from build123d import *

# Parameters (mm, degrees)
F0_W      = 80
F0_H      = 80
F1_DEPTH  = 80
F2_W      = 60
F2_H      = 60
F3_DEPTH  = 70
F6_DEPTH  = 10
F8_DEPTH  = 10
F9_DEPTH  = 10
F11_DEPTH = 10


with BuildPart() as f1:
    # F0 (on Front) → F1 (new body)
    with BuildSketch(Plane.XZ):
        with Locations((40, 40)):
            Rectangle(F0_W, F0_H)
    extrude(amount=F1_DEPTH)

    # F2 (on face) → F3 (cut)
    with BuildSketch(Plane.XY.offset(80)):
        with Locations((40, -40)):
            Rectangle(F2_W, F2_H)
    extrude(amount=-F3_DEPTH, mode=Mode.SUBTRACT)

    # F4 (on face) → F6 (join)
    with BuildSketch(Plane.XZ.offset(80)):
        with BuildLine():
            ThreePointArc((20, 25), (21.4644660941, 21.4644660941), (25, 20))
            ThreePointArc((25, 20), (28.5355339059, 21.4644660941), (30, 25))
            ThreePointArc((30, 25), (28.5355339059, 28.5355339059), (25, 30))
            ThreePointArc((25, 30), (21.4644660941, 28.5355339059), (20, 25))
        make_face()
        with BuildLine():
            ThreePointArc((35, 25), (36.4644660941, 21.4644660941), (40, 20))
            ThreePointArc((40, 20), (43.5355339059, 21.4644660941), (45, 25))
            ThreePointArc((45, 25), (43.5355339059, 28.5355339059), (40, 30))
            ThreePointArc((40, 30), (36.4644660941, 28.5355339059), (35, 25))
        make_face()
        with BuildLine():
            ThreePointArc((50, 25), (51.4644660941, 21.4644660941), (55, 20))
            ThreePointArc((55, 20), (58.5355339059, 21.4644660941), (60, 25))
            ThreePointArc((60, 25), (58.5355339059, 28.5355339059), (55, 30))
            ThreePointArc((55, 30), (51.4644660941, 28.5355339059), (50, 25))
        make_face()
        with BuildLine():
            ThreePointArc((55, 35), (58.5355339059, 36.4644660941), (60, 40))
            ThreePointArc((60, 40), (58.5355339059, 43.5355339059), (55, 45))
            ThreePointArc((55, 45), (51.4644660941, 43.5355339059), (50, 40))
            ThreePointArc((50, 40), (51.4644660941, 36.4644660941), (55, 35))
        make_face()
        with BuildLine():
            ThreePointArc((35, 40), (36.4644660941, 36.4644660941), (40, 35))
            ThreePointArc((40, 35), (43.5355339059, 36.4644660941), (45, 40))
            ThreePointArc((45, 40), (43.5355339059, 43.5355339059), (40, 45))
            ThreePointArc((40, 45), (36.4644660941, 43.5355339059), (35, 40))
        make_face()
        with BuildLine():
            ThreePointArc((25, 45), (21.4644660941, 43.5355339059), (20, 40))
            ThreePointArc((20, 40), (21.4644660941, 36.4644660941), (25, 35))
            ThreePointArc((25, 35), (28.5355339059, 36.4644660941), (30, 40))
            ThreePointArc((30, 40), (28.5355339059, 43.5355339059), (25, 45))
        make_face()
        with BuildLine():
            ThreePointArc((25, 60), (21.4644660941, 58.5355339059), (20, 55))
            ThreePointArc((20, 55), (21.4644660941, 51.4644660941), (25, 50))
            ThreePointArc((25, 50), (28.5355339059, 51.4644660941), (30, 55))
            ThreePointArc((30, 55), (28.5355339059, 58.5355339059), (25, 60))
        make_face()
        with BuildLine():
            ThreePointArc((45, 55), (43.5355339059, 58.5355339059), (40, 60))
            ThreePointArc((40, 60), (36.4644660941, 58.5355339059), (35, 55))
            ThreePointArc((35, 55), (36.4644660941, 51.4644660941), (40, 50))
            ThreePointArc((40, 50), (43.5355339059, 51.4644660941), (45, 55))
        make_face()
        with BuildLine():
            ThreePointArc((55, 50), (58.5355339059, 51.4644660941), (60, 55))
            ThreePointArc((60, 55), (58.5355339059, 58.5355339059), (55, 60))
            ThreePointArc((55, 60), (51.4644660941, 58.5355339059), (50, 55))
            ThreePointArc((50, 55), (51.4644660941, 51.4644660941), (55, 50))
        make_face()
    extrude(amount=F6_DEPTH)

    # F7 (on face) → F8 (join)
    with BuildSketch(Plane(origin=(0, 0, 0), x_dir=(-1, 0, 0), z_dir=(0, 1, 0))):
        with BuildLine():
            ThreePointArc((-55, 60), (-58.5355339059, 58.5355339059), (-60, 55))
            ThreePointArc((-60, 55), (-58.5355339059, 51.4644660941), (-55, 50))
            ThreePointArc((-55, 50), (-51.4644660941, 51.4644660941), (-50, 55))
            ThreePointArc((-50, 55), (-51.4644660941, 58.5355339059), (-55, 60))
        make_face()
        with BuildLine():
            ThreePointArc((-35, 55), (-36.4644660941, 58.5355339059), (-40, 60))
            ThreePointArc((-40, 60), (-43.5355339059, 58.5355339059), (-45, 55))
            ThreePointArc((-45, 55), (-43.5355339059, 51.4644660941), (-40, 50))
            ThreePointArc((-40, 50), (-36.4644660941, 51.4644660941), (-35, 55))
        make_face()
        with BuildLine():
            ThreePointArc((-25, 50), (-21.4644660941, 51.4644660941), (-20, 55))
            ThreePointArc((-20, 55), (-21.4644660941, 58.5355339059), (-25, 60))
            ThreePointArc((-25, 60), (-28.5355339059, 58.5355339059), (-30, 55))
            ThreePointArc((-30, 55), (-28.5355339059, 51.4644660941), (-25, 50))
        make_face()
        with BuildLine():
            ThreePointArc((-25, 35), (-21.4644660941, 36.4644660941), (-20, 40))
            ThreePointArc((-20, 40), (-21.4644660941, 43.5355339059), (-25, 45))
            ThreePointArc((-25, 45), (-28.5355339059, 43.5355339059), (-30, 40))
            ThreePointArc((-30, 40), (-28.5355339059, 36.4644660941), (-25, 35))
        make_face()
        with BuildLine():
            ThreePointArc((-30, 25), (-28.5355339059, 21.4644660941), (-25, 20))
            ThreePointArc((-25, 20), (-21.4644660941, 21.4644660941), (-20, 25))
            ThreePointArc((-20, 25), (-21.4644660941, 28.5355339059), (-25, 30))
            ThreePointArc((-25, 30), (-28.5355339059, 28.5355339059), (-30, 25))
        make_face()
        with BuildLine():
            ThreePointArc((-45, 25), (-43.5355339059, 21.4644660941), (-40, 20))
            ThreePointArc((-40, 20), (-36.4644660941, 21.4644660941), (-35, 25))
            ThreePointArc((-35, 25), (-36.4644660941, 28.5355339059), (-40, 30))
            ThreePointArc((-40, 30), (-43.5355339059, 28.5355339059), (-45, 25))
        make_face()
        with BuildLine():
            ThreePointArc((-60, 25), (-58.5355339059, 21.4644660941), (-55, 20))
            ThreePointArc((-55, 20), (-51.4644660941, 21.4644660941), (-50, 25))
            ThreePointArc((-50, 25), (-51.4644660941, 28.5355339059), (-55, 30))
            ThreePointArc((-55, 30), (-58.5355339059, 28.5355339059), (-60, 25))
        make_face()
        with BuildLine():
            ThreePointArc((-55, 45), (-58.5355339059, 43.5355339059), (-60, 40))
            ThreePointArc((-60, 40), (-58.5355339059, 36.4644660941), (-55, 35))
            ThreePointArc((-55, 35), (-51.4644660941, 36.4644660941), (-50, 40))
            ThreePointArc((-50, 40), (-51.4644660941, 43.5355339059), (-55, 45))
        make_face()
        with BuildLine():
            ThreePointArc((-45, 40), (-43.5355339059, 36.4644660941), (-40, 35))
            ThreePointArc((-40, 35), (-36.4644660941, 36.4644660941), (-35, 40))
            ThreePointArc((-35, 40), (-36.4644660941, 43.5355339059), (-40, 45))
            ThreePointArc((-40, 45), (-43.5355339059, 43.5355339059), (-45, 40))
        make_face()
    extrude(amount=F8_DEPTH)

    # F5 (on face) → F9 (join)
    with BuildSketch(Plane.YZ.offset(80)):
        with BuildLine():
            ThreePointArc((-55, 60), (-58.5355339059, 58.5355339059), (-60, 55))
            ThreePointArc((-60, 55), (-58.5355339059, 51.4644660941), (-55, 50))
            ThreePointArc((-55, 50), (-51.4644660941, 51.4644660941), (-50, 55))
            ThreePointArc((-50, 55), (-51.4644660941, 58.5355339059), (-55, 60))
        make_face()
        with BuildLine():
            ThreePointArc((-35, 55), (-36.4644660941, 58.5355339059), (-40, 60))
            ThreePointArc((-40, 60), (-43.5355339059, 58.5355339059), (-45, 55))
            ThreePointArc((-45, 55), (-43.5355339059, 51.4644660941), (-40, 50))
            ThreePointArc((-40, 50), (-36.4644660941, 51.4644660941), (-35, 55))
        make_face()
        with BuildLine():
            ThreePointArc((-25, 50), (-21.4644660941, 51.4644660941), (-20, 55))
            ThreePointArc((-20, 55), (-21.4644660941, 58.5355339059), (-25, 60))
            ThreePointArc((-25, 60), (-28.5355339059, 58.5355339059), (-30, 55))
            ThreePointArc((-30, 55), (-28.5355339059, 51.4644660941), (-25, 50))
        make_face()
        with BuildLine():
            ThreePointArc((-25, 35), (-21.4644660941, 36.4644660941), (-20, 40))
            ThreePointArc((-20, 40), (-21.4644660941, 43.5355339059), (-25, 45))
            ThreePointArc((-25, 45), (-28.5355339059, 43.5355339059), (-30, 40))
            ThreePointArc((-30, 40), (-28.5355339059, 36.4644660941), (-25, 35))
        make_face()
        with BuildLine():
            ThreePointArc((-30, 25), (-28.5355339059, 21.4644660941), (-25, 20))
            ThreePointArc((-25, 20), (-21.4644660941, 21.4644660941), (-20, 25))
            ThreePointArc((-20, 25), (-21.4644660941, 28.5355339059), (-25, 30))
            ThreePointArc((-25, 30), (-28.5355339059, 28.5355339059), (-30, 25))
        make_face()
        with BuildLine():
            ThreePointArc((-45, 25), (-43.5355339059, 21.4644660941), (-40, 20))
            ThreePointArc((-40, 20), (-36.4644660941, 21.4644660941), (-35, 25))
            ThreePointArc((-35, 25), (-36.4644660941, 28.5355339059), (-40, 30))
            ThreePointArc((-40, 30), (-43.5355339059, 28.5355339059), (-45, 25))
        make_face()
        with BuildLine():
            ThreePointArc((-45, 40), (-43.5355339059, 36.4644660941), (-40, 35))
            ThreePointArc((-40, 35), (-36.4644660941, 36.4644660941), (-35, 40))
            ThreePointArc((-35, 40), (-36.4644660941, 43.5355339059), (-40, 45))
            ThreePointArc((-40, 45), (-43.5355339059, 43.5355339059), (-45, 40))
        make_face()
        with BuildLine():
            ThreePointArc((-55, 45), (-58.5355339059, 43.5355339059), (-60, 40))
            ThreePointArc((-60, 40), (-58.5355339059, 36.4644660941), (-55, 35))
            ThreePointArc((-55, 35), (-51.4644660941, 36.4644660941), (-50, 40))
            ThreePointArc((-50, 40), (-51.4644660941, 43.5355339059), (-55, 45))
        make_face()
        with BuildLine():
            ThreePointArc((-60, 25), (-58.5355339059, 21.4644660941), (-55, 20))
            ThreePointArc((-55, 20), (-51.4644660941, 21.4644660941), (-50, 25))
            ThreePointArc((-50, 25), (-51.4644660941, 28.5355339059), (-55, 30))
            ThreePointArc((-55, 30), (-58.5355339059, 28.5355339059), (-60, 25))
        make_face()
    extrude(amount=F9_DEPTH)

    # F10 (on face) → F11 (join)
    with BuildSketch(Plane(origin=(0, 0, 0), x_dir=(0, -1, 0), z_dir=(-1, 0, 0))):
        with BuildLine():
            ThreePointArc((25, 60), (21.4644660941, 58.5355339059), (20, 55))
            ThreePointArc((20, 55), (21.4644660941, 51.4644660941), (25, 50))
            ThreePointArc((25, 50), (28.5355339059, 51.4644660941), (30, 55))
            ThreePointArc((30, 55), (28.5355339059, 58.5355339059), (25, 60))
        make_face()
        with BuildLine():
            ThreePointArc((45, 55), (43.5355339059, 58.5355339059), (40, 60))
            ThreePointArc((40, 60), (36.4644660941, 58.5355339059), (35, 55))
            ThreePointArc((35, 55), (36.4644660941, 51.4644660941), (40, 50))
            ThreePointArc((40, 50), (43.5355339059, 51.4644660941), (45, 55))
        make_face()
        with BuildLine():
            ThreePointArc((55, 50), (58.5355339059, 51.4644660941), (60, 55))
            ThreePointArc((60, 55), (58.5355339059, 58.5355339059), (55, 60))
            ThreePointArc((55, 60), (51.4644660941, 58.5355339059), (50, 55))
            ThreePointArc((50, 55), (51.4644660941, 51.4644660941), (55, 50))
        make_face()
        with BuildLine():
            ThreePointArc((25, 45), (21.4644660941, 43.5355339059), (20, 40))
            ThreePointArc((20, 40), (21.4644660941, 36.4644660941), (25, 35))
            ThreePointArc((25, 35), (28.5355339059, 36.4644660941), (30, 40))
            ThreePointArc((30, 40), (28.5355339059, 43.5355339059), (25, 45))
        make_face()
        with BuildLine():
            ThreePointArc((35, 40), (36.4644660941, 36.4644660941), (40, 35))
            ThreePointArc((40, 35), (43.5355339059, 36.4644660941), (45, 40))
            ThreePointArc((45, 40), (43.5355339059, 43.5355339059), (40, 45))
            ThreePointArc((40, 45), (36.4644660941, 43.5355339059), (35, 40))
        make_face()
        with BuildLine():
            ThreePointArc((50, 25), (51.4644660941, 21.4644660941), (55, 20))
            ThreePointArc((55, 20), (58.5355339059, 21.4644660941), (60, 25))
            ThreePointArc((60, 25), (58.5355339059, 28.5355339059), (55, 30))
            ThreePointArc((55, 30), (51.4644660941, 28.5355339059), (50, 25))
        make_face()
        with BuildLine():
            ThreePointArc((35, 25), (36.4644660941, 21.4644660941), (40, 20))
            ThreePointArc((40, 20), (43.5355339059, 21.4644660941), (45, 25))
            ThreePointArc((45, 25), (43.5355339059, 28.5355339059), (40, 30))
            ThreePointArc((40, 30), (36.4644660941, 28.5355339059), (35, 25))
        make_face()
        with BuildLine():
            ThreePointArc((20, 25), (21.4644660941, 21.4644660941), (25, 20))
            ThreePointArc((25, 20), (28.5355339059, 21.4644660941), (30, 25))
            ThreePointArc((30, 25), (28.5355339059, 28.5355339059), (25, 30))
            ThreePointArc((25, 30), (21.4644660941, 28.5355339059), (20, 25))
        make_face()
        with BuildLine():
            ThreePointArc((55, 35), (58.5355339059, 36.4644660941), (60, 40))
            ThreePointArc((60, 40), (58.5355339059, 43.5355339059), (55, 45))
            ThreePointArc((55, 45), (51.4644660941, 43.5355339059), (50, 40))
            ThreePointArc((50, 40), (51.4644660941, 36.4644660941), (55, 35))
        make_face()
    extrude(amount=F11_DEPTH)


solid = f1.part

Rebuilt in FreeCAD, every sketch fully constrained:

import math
import FreeCAD as App
import Part
import Sketcher
from FreeCAD import Vector


def add_polygon(sketch, points):
    """Adds a closed chain of lines whose ends are joined by coincident constraints."""
    first, n = sketch.GeometryCount, len(points)
    for a, b in zip(points, points[1:] + points[:1]):
        sketch.addGeometry(Part.LineSegment(App.Vector(*a, 0), App.Vector(*b, 0)), False)
    for i in range(n):
        sketch.addConstraint(Sketcher.Constraint("Coincident", first + i, 2, first + (i + 1) % n, 1))

doc = App.newDocument("Part")
body = doc.addObject("PartDesign::Body", "Body")

sketch1 = body.newObject("Sketcher::SketchObject", "Sketch")
sketch1.AttachmentSupport = (doc.getObject("XZ_Plane"), [""])
sketch1.MapMode = "FlatFace"
add_polygon(sketch1, [(0, 80), (0, 0), (80, 0), (80, 80)])
sketch1.addConstraint([
    Sketcher.Constraint("Vertical", 0),
    Sketcher.Constraint("Horizontal", 1),
    Sketcher.Constraint("Vertical", 2),
    Sketcher.Constraint("Horizontal", 3),
    Sketcher.Constraint("Coincident", 0, 2, -1, 1),
    Sketcher.Constraint("Equal", 3, 0),
    Sketcher.Constraint("DistanceX", 1, 1, 1, 2, 80.0),
])
pad1 = body.newObject("PartDesign::Pad", "Pad")
pad1.Profile = sketch1
pad1.Length = 80

sketch2 = body.newObject("Sketcher::SketchObject", "Sketch001")
sketch2.AttachmentSupport = (doc.getObject("XY_Plane"), [""])
sketch2.MapMode = "FlatFace"
sketch2.AttachmentOffset = App.Placement(Vector(0, 0, 80), App.Rotation())
add_polygon(sketch2, [(10, -10), (10, -70), (70, -70), (70, -10)])
sketch2.addConstraint([
    Sketcher.Constraint("Vertical", 0),
    Sketcher.Constraint("Horizontal", 1),
    Sketcher.Constraint("Vertical", 2),
    Sketcher.Constraint("Horizontal", 3),
    Sketcher.Constraint("Equal", 3, 0),
    Sketcher.Constraint("DistanceX", 1, 1, 1, 2, 60.0),
    Sketcher.Constraint("DistanceX", -1, 1, 0, 2, 10.0),
    Sketcher.Constraint("DistanceY", 0, 2, -1, 1, 70.0),
])
pocket1 = body.newObject("PartDesign::Pocket", "Pocket")
pocket1.Profile = sketch2
pocket1.Length = 70

sketch3 = body.newObject("Sketcher::SketchObject", "Sketch002")
sketch3.AttachmentSupport = (doc.getObject("XZ_Plane"), [""])
sketch3.MapMode = "FlatFace"
sketch3.AttachmentOffset = App.Placement(Vector(0, 0, 80), App.Rotation())
sketch3.addGeometry([
    Part.ArcOfCircle(Part.Circle(Vector(25, 25, 0), Vector(0, 0, 1), 5), math.radians(180), math.radians(270)),
    Part.ArcOfCircle(Part.Circle(Vector(25, 25, 0), Vector(0, 0, 1), 5), math.radians(-90), math.radians(0)),
    Part.ArcOfCircle(Part.Circle(Vector(25, 25, 0), Vector(0, 0, 1), 5), math.radians(0), math.radians(90)),
    Part.ArcOfCircle(Part.Circle(Vector(25, 25, 0), Vector(0, 0, 1), 5), math.radians(90), math.radians(180)),
    Part.ArcOfCircle(Part.Circle(Vector(40, 25, 0), Vector(0, 0, 1), 5), math.radians(180), math.radians(270)),
    Part.ArcOfCircle(Part.Circle(Vector(40, 25, 0), Vector(0, 0, 1), 5), math.radians(-90), math.radians(0)),
    Part.ArcOfCircle(Part.Circle(Vector(40, 25, 0), Vector(0, 0, 1), 5), math.radians(0), math.radians(90)),
    Part.ArcOfCircle(Part.Circle(Vector(40, 25, 0), Vector(0, 0, 1), 5), math.radians(90), math.radians(180)),
    Part.ArcOfCircle(Part.Circle(Vector(55, 25, 0), Vector(0, 0, 1), 5), math.radians(180), math.radians(270)),
    Part.ArcOfCircle(Part.Circle(Vector(55, 25, 0), Vector(0, 0, 1), 5), math.radians(-90), math.radians(0)),
    Part.ArcOfCircle(Part.Circle(Vector(55, 25, 0), Vector(0, 0, 1), 5), math.radians(0), math.radians(90)),
    Part.ArcOfCircle(Part.Circle(Vector(55, 25, 0), Vector(0, 0, 1), 5), math.radians(90), math.radians(180)),
    Part.ArcOfCircle(Part.Circle(Vector(55, 40, 0), Vector(0, 0, 1), 5), math.radians(-90), math.radians(0)),
    Part.ArcOfCircle(Part.Circle(Vector(55, 40, 0), Vector(0, 0, 1), 5), math.radians(0), math.radians(90)),
    Part.ArcOfCircle(Part.Circle(Vector(55, 40, 0), Vector(0, 0, 1), 5), math.radians(90), math.radians(180)),
    Part.ArcOfCircle(Part.Circle(Vector(55, 40, 0), Vector(0, 0, 1), 5), math.radians(180), math.radians(270)),
    Part.ArcOfCircle(Part.Circle(Vector(40, 40, 0), Vector(0, 0, 1), 5), math.radians(180), math.radians(270)),
    Part.ArcOfCircle(Part.Circle(Vector(40, 40, 0), Vector(0, 0, 1), 5), math.radians(-90), math.radians(0)),
    Part.ArcOfCircle(Part.Circle(Vector(40, 40, 0), Vector(0, 0, 1), 5), math.radians(0), math.radians(90)),
    Part.ArcOfCircle(Part.Circle(Vector(40, 40, 0), Vector(0, 0, 1), 5), math.radians(90), math.radians(180)),
    Part.ArcOfCircle(Part.Circle(Vector(25, 40, 0), Vector(0, 0, 1), 5), math.radians(90), math.radians(180)),
    Part.ArcOfCircle(Part.Circle(Vector(25, 40, 0), Vector(0, 0, 1), 5), math.radians(180), math.radians(270)),
    Part.ArcOfCircle(Part.Circle(Vector(25, 40, 0), Vector(0, 0, 1), 5), math.radians(-90), math.radians(0)),
    Part.ArcOfCircle(Part.Circle(Vector(25, 40, 0), Vector(0, 0, 1), 5), math.radians(0), math.radians(90)),
    Part.ArcOfCircle(Part.Circle(Vector(25, 55, 0), Vector(0, 0, 1), 5), math.radians(90), math.radians(180)),
    Part.ArcOfCircle(Part.Circle(Vector(25, 55, 0), Vector(0, 0, 1), 5), math.radians(180), math.radians(270)),
    Part.ArcOfCircle(Part.Circle(Vector(25, 55, 0), Vector(0, 0, 1), 5), math.radians(-90), math.radians(0)),
    Part.ArcOfCircle(Part.Circle(Vector(25, 55, 0), Vector(0, 0, 1), 5), math.radians(0), math.radians(90)),
    Part.ArcOfCircle(Part.Circle(Vector(40, 55, 0), Vector(0, 0, 1), 5), math.radians(0), math.radians(90)),
    Part.ArcOfCircle(Part.Circle(Vector(40, 55, 0), Vector(0, 0, 1), 5), math.radians(90), math.radians(180)),
    Part.ArcOfCircle(Part.Circle(Vector(40, 55, 0), Vector(0, 0, 1), 5), math.radians(180), math.radians(270)),
    Part.ArcOfCircle(Part.Circle(Vector(40, 55, 0), Vector(0, 0, 1), 5), math.radians(-90), math.radians(0)),
    Part.ArcOfCircle(Part.Circle(Vector(55, 55, 0), Vector(0, 0, 1), 5), math.radians(-90), math.radians(0)),
    Part.ArcOfCircle(Part.Circle(Vector(55, 55, 0), Vector(0, 0, 1), 5), math.radians(0), math.radians(90)),
    Part.ArcOfCircle(Part.Circle(Vector(55, 55, 0), Vector(0, 0, 1), 5), math.radians(90), math.radians(180)),
    Part.ArcOfCircle(Part.Circle(Vector(55, 55, 0), Vector(0, 0, 1), 5), math.radians(180), math.radians(270)),
], False)
sketch3.addConstraint([
    Sketcher.Constraint("Tangent", 0, 2, 1, 1),
    Sketcher.Constraint("Tangent", 1, 2, 2, 1),
    Sketcher.Constraint("Tangent", 2, 2, 3, 1),
    Sketcher.Constraint("Tangent", 3, 2, 0, 1),
    Sketcher.Constraint("Tangent", 4, 2, 5, 1),
    Sketcher.Constraint("Tangent", 5, 2, 6, 1),
    Sketcher.Constraint("Tangent", 6, 2, 7, 1),
    Sketcher.Constraint("Tangent", 7, 2, 4, 1),
    Sketcher.Constraint("Tangent", 8, 2, 9, 1),
    Sketcher.Constraint("Tangent", 9, 2, 10, 1),
    Sketcher.Constraint("Tangent", 10, 2, 11, 1),
    Sketcher.Constraint("Tangent", 11, 2, 8, 1),
    Sketcher.Constraint("Tangent", 12, 2, 13, 1),
    Sketcher.Constraint("Tangent", 13, 2, 14, 1),
    Sketcher.Constraint("Tangent", 14, 2, 15, 1),
    Sketcher.Constraint("Tangent", 15, 2, 12, 1),
    Sketcher.Constraint("Tangent", 16, 2, 17, 1),
    Sketcher.Constraint("Tangent", 17, 2, 18, 1),
    Sketcher.Constraint("Tangent", 18, 2, 19, 1),
    Sketcher.Constraint("Tangent", 19, 2, 16, 1),
    Sketcher.Constraint("Tangent", 20, 2, 21, 1),
    Sketcher.Constraint("Tangent", 21, 2, 22, 1),
    Sketcher.Constraint("Tangent", 22, 2, 23, 1),
    Sketcher.Constraint("Tangent", 23, 2, 20, 1),
    Sketcher.Constraint("Tangent", 24, 2, 25, 1),
    Sketcher.Constraint("Tangent", 25, 2, 26, 1),
    Sketcher.Constraint("Tangent", 26, 2, 27, 1),
    Sketcher.Constraint("Tangent", 27, 2, 24, 1),
    Sketcher.Constraint("Tangent", 28, 2, 29, 1),
    Sketcher.Constraint("Tangent", 29, 2, 30, 1),
    Sketcher.Constraint("Tangent", 30, 2, 31, 1),
    Sketcher.Constraint("Tangent", 31, 2, 28, 1),
    Sketcher.Constraint("Tangent", 32, 2, 33, 1),
    Sketcher.Constraint("Tangent", 33, 2, 34, 1),
    Sketcher.Constraint("Tangent", 34, 2, 35, 1),
    Sketcher.Constraint("Tangent", 35, 2, 32, 1),
    Sketcher.Constraint("Equal", 0, 1),
    Sketcher.Constraint("Equal", 3, 4),
    Sketcher.Constraint("Equal", 4, 5),
    Sketcher.Constraint("Equal", 7, 8),
    Sketcher.Constraint("Equal", 8, 9),
    Sketcher.Constraint("Equal", 11, 12),
    Sketcher.Constraint("Equal", 12, 13),
    Sketcher.Constraint("Equal", 15, 16),
    Sketcher.Constraint("Equal", 16, 17),
    Sketcher.Constraint("Equal", 19, 20),
    Sketcher.Constraint("Equal", 20, 21),
    Sketcher.Constraint("Equal", 23, 24),
    Sketcher.Constraint("Equal", 24, 25),
    Sketcher.Constraint("Equal", 27, 28),
    Sketcher.Constraint("Equal", 28, 29),
    Sketcher.Constraint("Equal", 31, 32),
    Sketcher.Constraint("Equal", 32, 33),
    Sketcher.Constraint("Horizontal", 3, 3, 4, 3),
    Sketcher.Constraint("Horizontal", 7, 3, 8, 3),
    Sketcher.Constraint("Horizontal", 15, 3, 16, 3),
    Sketcher.Constraint("Horizontal", 19, 3, 20, 3),
    Sketcher.Constraint("Horizontal", 27, 3, 28, 3),
    Sketcher.Constraint("Horizontal", 31, 3, 32, 3),
    Sketcher.Constraint("Horizontal", 11, 3, 1, 2),
    Sketcher.Constraint("Horizontal", 1, 2, 3, 2),
    Sketcher.Constraint("Horizontal", 3, 2, 5, 2),
    Sketcher.Constraint("Horizontal", 5, 2, 7, 2),
    Sketcher.Constraint("Horizontal", 7, 2, 9, 2),
    Sketcher.Constraint("Horizontal", 9, 2, 11, 2),
    Sketcher.Constraint("Horizontal", 23, 3, 12, 2),
    Sketcher.Constraint("Horizontal", 12, 2, 14, 2),
    Sketcher.Constraint("Horizontal", 14, 2, 17, 2),
    Sketcher.Constraint("Horizontal", 17, 2, 19, 2),
    Sketcher.Constraint("Horizontal", 19, 2, 20, 2),
    Sketcher.Constraint("Horizontal", 20, 2, 22, 2),
    Sketcher.Constraint("Horizontal", 35, 3, 24, 2),
    Sketcher.Constraint("Horizontal", 24, 2, 26, 2),
    Sketcher.Constraint("Horizontal", 26, 2, 29, 2),
    Sketcher.Constraint("Horizontal", 29, 2, 31, 2),
    Sketcher.Constraint("Horizontal", 31, 2, 32, 2),
    Sketcher.Constraint("Horizontal", 32, 2, 34, 2),
    Sketcher.Constraint("Vertical", 11, 3, 12, 3),
    Sketcher.Constraint("Vertical", 7, 3, 16, 3),
    Sketcher.Constraint("Vertical", 3, 3, 20, 3),
    Sketcher.Constraint("Vertical", 23, 3, 24, 3),
    Sketcher.Constraint("Vertical", 19, 3, 28, 3),
    Sketcher.Constraint("Vertical", 15, 3, 32, 3),
    Sketcher.Constraint("Vertical", 27, 3, 0, 2),
    Sketcher.Constraint("Vertical", 0, 2, 2, 2),
    Sketcher.Constraint("Vertical", 31, 3, 4, 2),
    Sketcher.Constraint("Vertical", 4, 2, 6, 2),
    Sketcher.Constraint("Vertical", 35, 3, 8, 2),
    Sketcher.Constraint("Vertical", 8, 2, 10, 2),
    Sketcher.Constraint("Vertical", 10, 2, 13, 2),
    Sketcher.Constraint("Vertical", 13, 2, 15, 2),
    Sketcher.Constraint("Vertical", 6, 2, 16, 2),
    Sketcher.Constraint("Vertical", 16, 2, 18, 2),
    Sketcher.Constraint("Vertical", 2, 2, 21, 2),
    Sketcher.Constraint("Vertical", 21, 2, 23, 2),
    Sketcher.Constraint("Vertical", 23, 2, 25, 2),
    Sketcher.Constraint("Vertical", 25, 2, 27, 2),
    Sketcher.Constraint("Vertical", 18, 2, 28, 2),
    Sketcher.Constraint("Vertical", 28, 2, 30, 2),
    Sketcher.Constraint("Vertical", 15, 2, 33, 2),
    Sketcher.Constraint("Vertical", 33, 2, 35, 2),
    Sketcher.Constraint("Radius", 0, 5.0),
    Sketcher.Constraint("DistanceX", -1, 1, 0, 3, 25.0),
    Sketcher.Constraint("DistanceY", -1, 1, 0, 3, 25.0),
    Sketcher.Constraint("DistanceX", -1, 1, 4, 3, 40.0),
    Sketcher.Constraint("DistanceX", -1, 1, 8, 3, 55.0),
    Sketcher.Constraint("DistanceY", -1, 1, 12, 3, 40.0),
    Sketcher.Constraint("DistanceY", -1, 1, 24, 3, 55.0),
])
pad2 = body.newObject("PartDesign::Pad", "Pad001")
pad2.Profile = sketch3
pad2.Length = 10

sketch4 = body.newObject("Sketcher::SketchObject", "Sketch003")
sketch4.AttachmentSupport = (doc.getObject("XZ_Plane"), [""])
sketch4.MapMode = "FlatFace"
sketch4.addGeometry([
    Part.ArcOfCircle(Part.Circle(Vector(55, 55, 0), Vector(0, 0, 1), 5), math.radians(0), math.radians(90)),
    Part.ArcOfCircle(Part.Circle(Vector(55, 55, 0), Vector(0, 0, 1), 5), math.radians(-90), math.radians(0)),
    Part.ArcOfCircle(Part.Circle(Vector(55, 55, 0), Vector(0, 0, 1), 5), math.radians(180), math.radians(270)),
    Part.ArcOfCircle(Part.Circle(Vector(55, 55, 0), Vector(0, 0, 1), 5), math.radians(90), math.radians(180)),
    Part.ArcOfCircle(Part.Circle(Vector(40, 55, 0), Vector(0, 0, 1), 5), math.radians(90), math.radians(180)),
    Part.ArcOfCircle(Part.Circle(Vector(40, 55, 0), Vector(0, 0, 1), 5), math.radians(0), math.radians(90)),
    Part.ArcOfCircle(Part.Circle(Vector(40, 55, 0), Vector(0, 0, 1), 5), math.radians(-90), math.radians(0)),
    Part.ArcOfCircle(Part.Circle(Vector(40, 55, 0), Vector(0, 0, 1), 5), math.radians(180), math.radians(270)),
    Part.ArcOfCircle(Part.Circle(Vector(25, 55, 0), Vector(0, 0, 1), 5), math.radians(180), math.radians(270)),
    Part.ArcOfCircle(Part.Circle(Vector(25, 55, 0), Vector(0, 0, 1), 5), math.radians(90), math.radians(180)),
    Part.ArcOfCircle(Part.Circle(Vector(25, 55, 0), Vector(0, 0, 1), 5), math.radians(0), math.radians(90)),
    Part.ArcOfCircle(Part.Circle(Vector(25, 55, 0), Vector(0, 0, 1), 5), math.radians(-90), math.radians(0)),
    Part.ArcOfCircle(Part.Circle(Vector(25, 40, 0), Vector(0, 0, 1), 5), math.radians(180), math.radians(270)),
    Part.ArcOfCircle(Part.Circle(Vector(25, 40, 0), Vector(0, 0, 1), 5), math.radians(90), math.radians(180)),
    Part.ArcOfCircle(Part.Circle(Vector(25, 40, 0), Vector(0, 0, 1), 5), math.radians(0), math.radians(90)),
    Part.ArcOfCircle(Part.Circle(Vector(25, 40, 0), Vector(0, 0, 1), 5), math.radians(-90), math.radians(0)),
    Part.ArcOfCircle(Part.Circle(Vector(25, 25, 0), Vector(0, 0, 1), 5), math.radians(-90), math.radians(0)),
    Part.ArcOfCircle(Part.Circle(Vector(25, 25, 0), Vector(0, 0, 1), 5), math.radians(180), math.radians(270)),
    Part.ArcOfCircle(Part.Circle(Vector(25, 25, 0), Vector(0, 0, 1), 5), math.radians(90), math.radians(180)),
    Part.ArcOfCircle(Part.Circle(Vector(25, 25, 0), Vector(0, 0, 1), 5), math.radians(0), math.radians(90)),
    Part.ArcOfCircle(Part.Circle(Vector(40, 25, 0), Vector(0, 0, 1), 5), math.radians(-90), math.radians(0)),
    Part.ArcOfCircle(Part.Circle(Vector(40, 25, 0), Vector(0, 0, 1), 5), math.radians(180), math.radians(270)),
    Part.ArcOfCircle(Part.Circle(Vector(40, 25, 0), Vector(0, 0, 1), 5), math.radians(90), math.radians(180)),
    Part.ArcOfCircle(Part.Circle(Vector(40, 25, 0), Vector(0, 0, 1), 5), math.radians(0), math.radians(90)),
    Part.ArcOfCircle(Part.Circle(Vector(55, 25, 0), Vector(0, 0, 1), 5), math.radians(-90), math.radians(0)),
    Part.ArcOfCircle(Part.Circle(Vector(55, 25, 0), Vector(0, 0, 1), 5), math.radians(180), math.radians(270)),
    Part.ArcOfCircle(Part.Circle(Vector(55, 25, 0), Vector(0, 0, 1), 5), math.radians(90), math.radians(180)),
    Part.ArcOfCircle(Part.Circle(Vector(55, 25, 0), Vector(0, 0, 1), 5), math.radians(0), math.radians(90)),
    Part.ArcOfCircle(Part.Circle(Vector(55, 40, 0), Vector(0, 0, 1), 5), math.radians(0), math.radians(90)),
    Part.ArcOfCircle(Part.Circle(Vector(55, 40, 0), Vector(0, 0, 1), 5), math.radians(-90), math.radians(0)),
    Part.ArcOfCircle(Part.Circle(Vector(55, 40, 0), Vector(0, 0, 1), 5), math.radians(180), math.radians(270)),
    Part.ArcOfCircle(Part.Circle(Vector(55, 40, 0), Vector(0, 0, 1), 5), math.radians(90), math.radians(180)),
    Part.ArcOfCircle(Part.Circle(Vector(40, 40, 0), Vector(0, 0, 1), 5), math.radians(-90), math.radians(0)),
    Part.ArcOfCircle(Part.Circle(Vector(40, 40, 0), Vector(0, 0, 1), 5), math.radians(180), math.radians(270)),
    Part.ArcOfCircle(Part.Circle(Vector(40, 40, 0), Vector(0, 0, 1), 5), math.radians(90), math.radians(180)),
    Part.ArcOfCircle(Part.Circle(Vector(40, 40, 0), Vector(0, 0, 1), 5), math.radians(0), math.radians(90)),
], False)
sketch4.addConstraint([
    Sketcher.Constraint("Tangent", 0, 1, 1, 2),
    Sketcher.Constraint("Tangent", 1, 1, 2, 2),
    Sketcher.Constraint("Tangent", 2, 1, 3, 2),
    Sketcher.Constraint("Tangent", 3, 1, 0, 2),
    Sketcher.Constraint("Tangent", 4, 1, 5, 2),
    Sketcher.Constraint("Tangent", 5, 1, 6, 2),
    Sketcher.Constraint("Tangent", 6, 1, 7, 2),
    Sketcher.Constraint("Tangent", 7, 1, 4, 2),
    Sketcher.Constraint("Tangent", 8, 1, 9, 2),
    Sketcher.Constraint("Tangent", 9, 1, 10, 2),
    Sketcher.Constraint("Tangent", 10, 1, 11, 2),
    Sketcher.Constraint("Tangent", 11, 1, 8, 2),
    Sketcher.Constraint("Tangent", 12, 1, 13, 2),
    Sketcher.Constraint("Tangent", 13, 1, 14, 2),
    Sketcher.Constraint("Tangent", 14, 1, 15, 2),
    Sketcher.Constraint("Tangent", 15, 1, 12, 2),
    Sketcher.Constraint("Tangent", 16, 1, 17, 2),
    Sketcher.Constraint("Tangent", 17, 1, 18, 2),
    Sketcher.Constraint("Tangent", 18, 1, 19, 2),
    Sketcher.Constraint("Tangent", 19, 1, 16, 2),
    Sketcher.Constraint("Tangent", 20, 1, 21, 2),
    Sketcher.Constraint("Tangent", 21, 1, 22, 2),
    Sketcher.Constraint("Tangent", 22, 1, 23, 2),
    Sketcher.Constraint("Tangent", 23, 1, 20, 2),
    Sketcher.Constraint("Tangent", 24, 1, 25, 2),
    Sketcher.Constraint("Tangent", 25, 1, 26, 2),
    Sketcher.Constraint("Tangent", 26, 1, 27, 2),
    Sketcher.Constraint("Tangent", 27, 1, 24, 2),
    Sketcher.Constraint("Tangent", 28, 1, 29, 2),
    Sketcher.Constraint("Tangent", 29, 1, 30, 2),
    Sketcher.Constraint("Tangent", 30, 1, 31, 2),
    Sketcher.Constraint("Tangent", 31, 1, 28, 2),
    Sketcher.Constraint("Tangent", 32, 1, 33, 2),
    Sketcher.Constraint("Tangent", 33, 1, 34, 2),
    Sketcher.Constraint("Tangent", 34, 1, 35, 2),
    Sketcher.Constraint("Tangent", 35, 1, 32, 2),
    Sketcher.Constraint("Equal", 0, 1),
    Sketcher.Constraint("Equal", 3, 4),
    Sketcher.Constraint("Equal", 4, 5),
    Sketcher.Constraint("Equal", 7, 8),
    Sketcher.Constraint("Equal", 8, 9),
    Sketcher.Constraint("Equal", 11, 12),
    Sketcher.Constraint("Equal", 12, 13),
    Sketcher.Constraint("Equal", 15, 16),
    Sketcher.Constraint("Equal", 16, 17),
    Sketcher.Constraint("Equal", 19, 20),
    Sketcher.Constraint("Equal", 20, 21),
    Sketcher.Constraint("Equal", 23, 24),
    Sketcher.Constraint("Equal", 24, 25),
    Sketcher.Constraint("Equal", 27, 28),
    Sketcher.Constraint("Equal", 28, 29),
    Sketcher.Constraint("Equal", 31, 32),
    Sketcher.Constraint("Equal", 32, 33),
    Sketcher.Constraint("Horizontal", 3, 3, 4, 3),
    Sketcher.Constraint("Horizontal", 7, 3, 8, 3),
    Sketcher.Constraint("Horizontal", 19, 3, 20, 3),
    Sketcher.Constraint("Horizontal", 23, 3, 24, 3),
    Sketcher.Constraint("Horizontal", 15, 3, 28, 3),
    Sketcher.Constraint("Horizontal", 31, 3, 32, 3),
    Sketcher.Constraint("Horizontal", 11, 3, 0, 1),
    Sketcher.Constraint("Horizontal", 0, 1, 2, 1),
    Sketcher.Constraint("Horizontal", 2, 1, 5, 1),
    Sketcher.Constraint("Horizontal", 5, 1, 7, 1),
    Sketcher.Constraint("Horizontal", 7, 1, 8, 1),
    Sketcher.Constraint("Horizontal", 8, 1, 10, 1),
    Sketcher.Constraint("Horizontal", 35, 3, 12, 1),
    Sketcher.Constraint("Horizontal", 12, 1, 14, 1),
    Sketcher.Constraint("Horizontal", 27, 3, 17, 1),
    Sketcher.Constraint("Horizontal", 17, 1, 19, 1),
    Sketcher.Constraint("Horizontal", 19, 1, 21, 1),
    Sketcher.Constraint("Horizontal", 21, 1, 23, 1),
    Sketcher.Constraint("Horizontal", 23, 1, 25, 1),
    Sketcher.Constraint("Horizontal", 25, 1, 27, 1),
    Sketcher.Constraint("Horizontal", 14, 1, 28, 1),
    Sketcher.Constraint("Horizontal", 28, 1, 30, 1),
    Sketcher.Constraint("Horizontal", 30, 1, 33, 1),
    Sketcher.Constraint("Horizontal", 33, 1, 35, 1),
    Sketcher.Constraint("Vertical", 11, 3, 12, 3),
    Sketcher.Constraint("Vertical", 15, 3, 16, 3),
    Sketcher.Constraint("Vertical", 7, 3, 20, 3),
    Sketcher.Constraint("Vertical", 3, 3, 24, 3),
    Sketcher.Constraint("Vertical", 27, 3, 28, 3),
    Sketcher.Constraint("Vertical", 23, 3, 32, 3),
    Sketcher.Constraint("Vertical", 31, 3, 1, 1),
    Sketcher.Constraint("Vertical", 1, 1, 3, 1),
    Sketcher.Constraint("Vertical", 35, 3, 4, 1),
    Sketcher.Constraint("Vertical", 4, 1, 6, 1),
    Sketcher.Constraint("Vertical", 19, 3, 9, 1),
    Sketcher.Constraint("Vertical", 9, 1, 11, 1),
    Sketcher.Constraint("Vertical", 11, 1, 13, 1),
    Sketcher.Constraint("Vertical", 13, 1, 15, 1),
    Sketcher.Constraint("Vertical", 15, 1, 16, 1),
    Sketcher.Constraint("Vertical", 16, 1, 18, 1),
    Sketcher.Constraint("Vertical", 6, 1, 20, 1),
    Sketcher.Constraint("Vertical", 20, 1, 22, 1),
    Sketcher.Constraint("Vertical", 3, 1, 24, 1),
    Sketcher.Constraint("Vertical", 24, 1, 26, 1),
    Sketcher.Constraint("Vertical", 26, 1, 29, 1),
    Sketcher.Constraint("Vertical", 29, 1, 31, 1),
    Sketcher.Constraint("Vertical", 22, 1, 32, 1),
    Sketcher.Constraint("Vertical", 32, 1, 34, 1),
    Sketcher.Constraint("Radius", 0, 5.0),
    Sketcher.Constraint("DistanceX", -1, 1, 0, 3, 55.0),
    Sketcher.Constraint("DistanceY", -1, 1, 0, 3, 55.0),
    Sketcher.Constraint("DistanceX", -1, 1, 4, 3, 40.0),
    Sketcher.Constraint("DistanceX", -1, 1, 8, 3, 25.0),
    Sketcher.Constraint("DistanceY", -1, 1, 12, 3, 40.0),
    Sketcher.Constraint("DistanceY", -1, 1, 16, 3, 25.0),
])
pad3 = body.newObject("PartDesign::Pad", "Pad002")
pad3.Profile = sketch4
pad3.Length = 10
pad3.Reversed = True

sketch5 = body.newObject("Sketcher::SketchObject", "Sketch004")
sketch5.AttachmentSupport = (doc.getObject("YZ_Plane"), [""])
sketch5.MapMode = "FlatFace"
sketch5.AttachmentOffset = App.Placement(Vector(0, 0, 80), App.Rotation())
sketch5.addGeometry([
    Part.ArcOfCircle(Part.Circle(Vector(-55, 55, 0), Vector(0, 0, 1), 5), math.radians(90), math.radians(180)),
    Part.ArcOfCircle(Part.Circle(Vector(-55, 55, 0), Vector(0, 0, 1), 5), math.radians(180), math.radians(270)),
    Part.ArcOfCircle(Part.Circle(Vector(-55, 55, 0), Vector(0, 0, 1), 5), math.radians(-90), math.radians(0)),
    Part.ArcOfCircle(Part.Circle(Vector(-55, 55, 0), Vector(0, 0, 1), 5), math.radians(0), math.radians(90)),
    Part.ArcOfCircle(Part.Circle(Vector(-40, 55, 0), Vector(0, 0, 1), 5), math.radians(0), math.radians(90)),
    Part.ArcOfCircle(Part.Circle(Vector(-40, 55, 0), Vector(0, 0, 1), 5), math.radians(90), math.radians(180)),
    Part.ArcOfCircle(Part.Circle(Vector(-40, 55, 0), Vector(0, 0, 1), 5), math.radians(180), math.radians(270)),
    Part.ArcOfCircle(Part.Circle(Vector(-40, 55, 0), Vector(0, 0, 1), 5), math.radians(-90), math.radians(0)),
    Part.ArcOfCircle(Part.Circle(Vector(-25, 55, 0), Vector(0, 0, 1), 5), math.radians(-90), math.radians(0)),
    Part.ArcOfCircle(Part.Circle(Vector(-25, 55, 0), Vector(0, 0, 1), 5), math.radians(0), math.radians(90)),
    Part.ArcOfCircle(Part.Circle(Vector(-25, 55, 0), Vector(0, 0, 1), 5), math.radians(90), math.radians(180)),
    Part.ArcOfCircle(Part.Circle(Vector(-25, 55, 0), Vector(0, 0, 1), 5), math.radians(180), math.radians(270)),
    Part.ArcOfCircle(Part.Circle(Vector(-25, 40, 0), Vector(0, 0, 1), 5), math.radians(-90), math.radians(0)),
    Part.ArcOfCircle(Part.Circle(Vector(-25, 40, 0), Vector(0, 0, 1), 5), math.radians(0), math.radians(90)),
    Part.ArcOfCircle(Part.Circle(Vector(-25, 40, 0), Vector(0, 0, 1), 5), math.radians(90), math.radians(180)),
    Part.ArcOfCircle(Part.Circle(Vector(-25, 40, 0), Vector(0, 0, 1), 5), math.radians(180), math.radians(270)),
    Part.ArcOfCircle(Part.Circle(Vector(-25, 25, 0), Vector(0, 0, 1), 5), math.radians(180), math.radians(270)),
    Part.ArcOfCircle(Part.Circle(Vector(-25, 25, 0), Vector(0, 0, 1), 5), math.radians(-90), math.radians(0)),
    Part.ArcOfCircle(Part.Circle(Vector(-25, 25, 0), Vector(0, 0, 1), 5), math.radians(0), math.radians(90)),
    Part.ArcOfCircle(Part.Circle(Vector(-25, 25, 0), Vector(0, 0, 1), 5), math.radians(90), math.radians(180)),
    Part.ArcOfCircle(Part.Circle(Vector(-40, 25, 0), Vector(0, 0, 1), 5), math.radians(180), math.radians(270)),
    Part.ArcOfCircle(Part.Circle(Vector(-40, 25, 0), Vector(0, 0, 1), 5), math.radians(-90), math.radians(0)),
    Part.ArcOfCircle(Part.Circle(Vector(-40, 25, 0), Vector(0, 0, 1), 5), math.radians(0), math.radians(90)),
    Part.ArcOfCircle(Part.Circle(Vector(-40, 25, 0), Vector(0, 0, 1), 5), math.radians(90), math.radians(180)),
    Part.ArcOfCircle(Part.Circle(Vector(-40, 40, 0), Vector(0, 0, 1), 5), math.radians(180), math.radians(270)),
    Part.ArcOfCircle(Part.Circle(Vector(-40, 40, 0), Vector(0, 0, 1), 5), math.radians(-90), math.radians(0)),
    Part.ArcOfCircle(Part.Circle(Vector(-40, 40, 0), Vector(0, 0, 1), 5), math.radians(0), math.radians(90)),
    Part.ArcOfCircle(Part.Circle(Vector(-40, 40, 0), Vector(0, 0, 1), 5), math.radians(90), math.radians(180)),
    Part.ArcOfCircle(Part.Circle(Vector(-55, 40, 0), Vector(0, 0, 1), 5), math.radians(90), math.radians(180)),
    Part.ArcOfCircle(Part.Circle(Vector(-55, 40, 0), Vector(0, 0, 1), 5), math.radians(180), math.radians(270)),
    Part.ArcOfCircle(Part.Circle(Vector(-55, 40, 0), Vector(0, 0, 1), 5), math.radians(-90), math.radians(0)),
    Part.ArcOfCircle(Part.Circle(Vector(-55, 40, 0), Vector(0, 0, 1), 5), math.radians(0), math.radians(90)),
    Part.ArcOfCircle(Part.Circle(Vector(-55, 25, 0), Vector(0, 0, 1), 5), math.radians(180), math.radians(270)),
    Part.ArcOfCircle(Part.Circle(Vector(-55, 25, 0), Vector(0, 0, 1), 5), math.radians(-90), math.radians(0)),
    Part.ArcOfCircle(Part.Circle(Vector(-55, 25, 0), Vector(0, 0, 1), 5), math.radians(0), math.radians(90)),
    Part.ArcOfCircle(Part.Circle(Vector(-55, 25, 0), Vector(0, 0, 1), 5), math.radians(90), math.radians(180)),
], False)
sketch5.addConstraint([
    Sketcher.Constraint("Tangent", 0, 2, 1, 1),
    Sketcher.Constraint("Tangent", 1, 2, 2, 1),
    Sketcher.Constraint("Tangent", 2, 2, 3, 1),
    Sketcher.Constraint("Tangent", 3, 2, 0, 1),
    Sketcher.Constraint("Tangent", 4, 2, 5, 1),
    Sketcher.Constraint("Tangent", 5, 2, 6, 1),
    Sketcher.Constraint("Tangent", 6, 2, 7, 1),
    Sketcher.Constraint("Tangent", 7, 2, 4, 1),
    Sketcher.Constraint("Tangent", 8, 2, 9, 1),
    Sketcher.Constraint("Tangent", 9, 2, 10, 1),
    Sketcher.Constraint("Tangent", 10, 2, 11, 1),
    Sketcher.Constraint("Tangent", 11, 2, 8, 1),
    Sketcher.Constraint("Tangent", 12, 2, 13, 1),
    Sketcher.Constraint("Tangent", 13, 2, 14, 1),
    Sketcher.Constraint("Tangent", 14, 2, 15, 1),
    Sketcher.Constraint("Tangent", 15, 2, 12, 1),
    Sketcher.Constraint("Tangent", 16, 2, 17, 1),
    Sketcher.Constraint("Tangent", 17, 2, 18, 1),
    Sketcher.Constraint("Tangent", 18, 2, 19, 1),
    Sketcher.Constraint("Tangent", 19, 2, 16, 1),
    Sketcher.Constraint("Tangent", 20, 2, 21, 1),
    Sketcher.Constraint("Tangent", 21, 2, 22, 1),
    Sketcher.Constraint("Tangent", 22, 2, 23, 1),
    Sketcher.Constraint("Tangent", 23, 2, 20, 1),
    Sketcher.Constraint("Tangent", 24, 2, 25, 1),
    Sketcher.Constraint("Tangent", 25, 2, 26, 1),
    Sketcher.Constraint("Tangent", 26, 2, 27, 1),
    Sketcher.Constraint("Tangent", 27, 2, 24, 1),
    Sketcher.Constraint("Tangent", 28, 2, 29, 1),
    Sketcher.Constraint("Tangent", 29, 2, 30, 1),
    Sketcher.Constraint("Tangent", 30, 2, 31, 1),
    Sketcher.Constraint("Tangent", 31, 2, 28, 1),
    Sketcher.Constraint("Tangent", 32, 2, 33, 1),
    Sketcher.Constraint("Tangent", 33, 2, 34, 1),
    Sketcher.Constraint("Tangent", 34, 2, 35, 1),
    Sketcher.Constraint("Tangent", 35, 2, 32, 1),
    Sketcher.Constraint("Equal", 0, 1),
    Sketcher.Constraint("Equal", 3, 4),
    Sketcher.Constraint("Equal", 4, 5),
    Sketcher.Constraint("Equal", 7, 8),
    Sketcher.Constraint("Equal", 8, 9),
    Sketcher.Constraint("Equal", 11, 12),
    Sketcher.Constraint("Equal", 12, 13),
    Sketcher.Constraint("Equal", 15, 16),
    Sketcher.Constraint("Equal", 16, 17),
    Sketcher.Constraint("Equal", 19, 20),
    Sketcher.Constraint("Equal", 20, 21),
    Sketcher.Constraint("Equal", 23, 24),
    Sketcher.Constraint("Equal", 24, 25),
    Sketcher.Constraint("Equal", 27, 28),
    Sketcher.Constraint("Equal", 28, 29),
    Sketcher.Constraint("Equal", 31, 32),
    Sketcher.Constraint("Equal", 32, 33),
    Sketcher.Constraint("Horizontal", 3, 3, 4, 3),
    Sketcher.Constraint("Horizontal", 7, 3, 8, 3),
    Sketcher.Constraint("Horizontal", 19, 3, 20, 3),
    Sketcher.Constraint("Horizontal", 15, 3, 24, 3),
    Sketcher.Constraint("Horizontal", 27, 3, 28, 3),
    Sketcher.Constraint("Horizontal", 23, 3, 32, 3),
    Sketcher.Constraint("Horizontal", 11, 3, 0, 2),
    Sketcher.Constraint("Horizontal", 0, 2, 2, 2),
    Sketcher.Constraint("Horizontal", 2, 2, 5, 2),
    Sketcher.Constraint("Horizontal", 5, 2, 7, 2),
    Sketcher.Constraint("Horizontal", 7, 2, 8, 2),
    Sketcher.Constraint("Horizontal", 8, 2, 10, 2),
    Sketcher.Constraint("Horizontal", 31, 3, 12, 2),
    Sketcher.Constraint("Horizontal", 12, 2, 14, 2),
    Sketcher.Constraint("Horizontal", 35, 3, 17, 2),
    Sketcher.Constraint("Horizontal", 17, 2, 19, 2),
    Sketcher.Constraint("Horizontal", 19, 2, 21, 2),
    Sketcher.Constraint("Horizontal", 21, 2, 23, 2),
    Sketcher.Constraint("Horizontal", 14, 2, 25, 2),
    Sketcher.Constraint("Horizontal", 25, 2, 27, 2),
    Sketcher.Constraint("Horizontal", 27, 2, 28, 2),
    Sketcher.Constraint("Horizontal", 28, 2, 30, 2),
    Sketcher.Constraint("Horizontal", 23, 2, 33, 2),
    Sketcher.Constraint("Horizontal", 33, 2, 35, 2),
    Sketcher.Constraint("Vertical", 11, 3, 12, 3),
    Sketcher.Constraint("Vertical", 15, 3, 16, 3),
    Sketcher.Constraint("Vertical", 7, 3, 20, 3),
    Sketcher.Constraint("Vertical", 23, 3, 24, 3),
    Sketcher.Constraint("Vertical", 3, 3, 28, 3),
    Sketcher.Constraint("Vertical", 31, 3, 32, 3),
    Sketcher.Constraint("Vertical", 35, 3, 1, 2),
    Sketcher.Constraint("Vertical", 1, 2, 3, 2),
    Sketcher.Constraint("Vertical", 27, 3, 4, 2),
    Sketcher.Constraint("Vertical", 4, 2, 6, 2),
    Sketcher.Constraint("Vertical", 19, 3, 9, 2),
    Sketcher.Constraint("Vertical", 9, 2, 11, 2),
    Sketcher.Constraint("Vertical", 11, 2, 13, 2),
    Sketcher.Constraint("Vertical", 13, 2, 15, 2),
    Sketcher.Constraint("Vertical", 15, 2, 16, 2),
    Sketcher.Constraint("Vertical", 16, 2, 18, 2),
    Sketcher.Constraint("Vertical", 6, 2, 20, 2),
    Sketcher.Constraint("Vertical", 20, 2, 22, 2),
    Sketcher.Constraint("Vertical", 22, 2, 24, 2),
    Sketcher.Constraint("Vertical", 24, 2, 26, 2),
    Sketcher.Constraint("Vertical", 3, 2, 29, 2),
    Sketcher.Constraint("Vertical", 29, 2, 31, 2),
    Sketcher.Constraint("Vertical", 31, 2, 32, 2),
    Sketcher.Constraint("Vertical", 32, 2, 34, 2),
    Sketcher.Constraint("Radius", 0, 5.0),
    Sketcher.Constraint("DistanceX", 0, 3, -1, 1, 55.0),
    Sketcher.Constraint("DistanceY", -1, 1, 0, 3, 55.0),
    Sketcher.Constraint("DistanceX", 4, 3, -1, 1, 40.0),
    Sketcher.Constraint("DistanceX", 8, 3, -1, 1, 25.0),
    Sketcher.Constraint("DistanceY", -1, 1, 12, 3, 40.0),
    Sketcher.Constraint("DistanceY", -1, 1, 16, 3, 25.0),
])
pad4 = body.newObject("PartDesign::Pad", "Pad003")
pad4.Profile = sketch5
pad4.Length = 10

sketch6 = body.newObject("Sketcher::SketchObject", "Sketch005")
sketch6.AttachmentSupport = (doc.getObject("YZ_Plane"), [""])
sketch6.MapMode = "FlatFace"
sketch6.addGeometry([
    Part.ArcOfCircle(Part.Circle(Vector(-25, 55, 0), Vector(0, 0, 1), 5), math.radians(0), math.radians(90)),
    Part.ArcOfCircle(Part.Circle(Vector(-25, 55, 0), Vector(0, 0, 1), 5), math.radians(-90), math.radians(0)),
    Part.ArcOfCircle(Part.Circle(Vector(-25, 55, 0), Vector(0, 0, 1), 5), math.radians(180), math.radians(270)),
    Part.ArcOfCircle(Part.Circle(Vector(-25, 55, 0), Vector(0, 0, 1), 5), math.radians(90), math.radians(180)),
    Part.ArcOfCircle(Part.Circle(Vector(-40, 55, 0), Vector(0, 0, 1), 5), math.radians(90), math.radians(180)),
    Part.ArcOfCircle(Part.Circle(Vector(-40, 55, 0), Vector(0, 0, 1), 5), math.radians(0), math.radians(90)),
    Part.ArcOfCircle(Part.Circle(Vector(-40, 55, 0), Vector(0, 0, 1), 5), math.radians(-90), math.radians(0)),
    Part.ArcOfCircle(Part.Circle(Vector(-40, 55, 0), Vector(0, 0, 1), 5), math.radians(180), math.radians(270)),
    Part.ArcOfCircle(Part.Circle(Vector(-55, 55, 0), Vector(0, 0, 1), 5), math.radians(180), math.radians(270)),
    Part.ArcOfCircle(Part.Circle(Vector(-55, 55, 0), Vector(0, 0, 1), 5), math.radians(90), math.radians(180)),
    Part.ArcOfCircle(Part.Circle(Vector(-55, 55, 0), Vector(0, 0, 1), 5), math.radians(0), math.radians(90)),
    Part.ArcOfCircle(Part.Circle(Vector(-55, 55, 0), Vector(0, 0, 1), 5), math.radians(-90), math.radians(0)),
    Part.ArcOfCircle(Part.Circle(Vector(-25, 40, 0), Vector(0, 0, 1), 5), math.radians(0), math.radians(90)),
    Part.ArcOfCircle(Part.Circle(Vector(-25, 40, 0), Vector(0, 0, 1), 5), math.radians(-90), math.radians(0)),
    Part.ArcOfCircle(Part.Circle(Vector(-25, 40, 0), Vector(0, 0, 1), 5), math.radians(180), math.radians(270)),
    Part.ArcOfCircle(Part.Circle(Vector(-25, 40, 0), Vector(0, 0, 1), 5), math.radians(90), math.radians(180)),
    Part.ArcOfCircle(Part.Circle(Vector(-40, 40, 0), Vector(0, 0, 1), 5), math.radians(-90), math.radians(0)),
    Part.ArcOfCircle(Part.Circle(Vector(-40, 40, 0), Vector(0, 0, 1), 5), math.radians(180), math.radians(270)),
    Part.ArcOfCircle(Part.Circle(Vector(-40, 40, 0), Vector(0, 0, 1), 5), math.radians(90), math.radians(180)),
    Part.ArcOfCircle(Part.Circle(Vector(-40, 40, 0), Vector(0, 0, 1), 5), math.radians(0), math.radians(90)),
    Part.ArcOfCircle(Part.Circle(Vector(-55, 25, 0), Vector(0, 0, 1), 5), math.radians(-90), math.radians(0)),
    Part.ArcOfCircle(Part.Circle(Vector(-55, 25, 0), Vector(0, 0, 1), 5), math.radians(180), math.radians(270)),
    Part.ArcOfCircle(Part.Circle(Vector(-55, 25, 0), Vector(0, 0, 1), 5), math.radians(90), math.radians(180)),
    Part.ArcOfCircle(Part.Circle(Vector(-55, 25, 0), Vector(0, 0, 1), 5), math.radians(0), math.radians(90)),
    Part.ArcOfCircle(Part.Circle(Vector(-40, 25, 0), Vector(0, 0, 1), 5), math.radians(-90), math.radians(0)),
    Part.ArcOfCircle(Part.Circle(Vector(-40, 25, 0), Vector(0, 0, 1), 5), math.radians(180), math.radians(270)),
    Part.ArcOfCircle(Part.Circle(Vector(-40, 25, 0), Vector(0, 0, 1), 5), math.radians(90), math.radians(180)),
    Part.ArcOfCircle(Part.Circle(Vector(-40, 25, 0), Vector(0, 0, 1), 5), math.radians(0), math.radians(90)),
    Part.ArcOfCircle(Part.Circle(Vector(-25, 25, 0), Vector(0, 0, 1), 5), math.radians(-90), math.radians(0)),
    Part.ArcOfCircle(Part.Circle(Vector(-25, 25, 0), Vector(0, 0, 1), 5), math.radians(180), math.radians(270)),
    Part.ArcOfCircle(Part.Circle(Vector(-25, 25, 0), Vector(0, 0, 1), 5), math.radians(90), math.radians(180)),
    Part.ArcOfCircle(Part.Circle(Vector(-25, 25, 0), Vector(0, 0, 1), 5), math.radians(0), math.radians(90)),
    Part.ArcOfCircle(Part.Circle(Vector(-55, 40, 0), Vector(0, 0, 1), 5), math.radians(180), math.radians(270)),
    Part.ArcOfCircle(Part.Circle(Vector(-55, 40, 0), Vector(0, 0, 1), 5), math.radians(90), math.radians(180)),
    Part.ArcOfCircle(Part.Circle(Vector(-55, 40, 0), Vector(0, 0, 1), 5), math.radians(0), math.radians(90)),
    Part.ArcOfCircle(Part.Circle(Vector(-55, 40, 0), Vector(0, 0, 1), 5), math.radians(-90), math.radians(0)),
], False)
sketch6.addConstraint([
    Sketcher.Constraint("Tangent", 0, 1, 1, 2),
    Sketcher.Constraint("Tangent", 1, 1, 2, 2),
    Sketcher.Constraint("Tangent", 2, 1, 3, 2),
    Sketcher.Constraint("Tangent", 3, 1, 0, 2),
    Sketcher.Constraint("Tangent", 4, 1, 5, 2),
    Sketcher.Constraint("Tangent", 5, 1, 6, 2),
    Sketcher.Constraint("Tangent", 6, 1, 7, 2),
    Sketcher.Constraint("Tangent", 7, 1, 4, 2),
    Sketcher.Constraint("Tangent", 8, 1, 9, 2),
    Sketcher.Constraint("Tangent", 9, 1, 10, 2),
    Sketcher.Constraint("Tangent", 10, 1, 11, 2),
    Sketcher.Constraint("Tangent", 11, 1, 8, 2),
    Sketcher.Constraint("Tangent", 12, 1, 13, 2),
    Sketcher.Constraint("Tangent", 13, 1, 14, 2),
    Sketcher.Constraint("Tangent", 14, 1, 15, 2),
    Sketcher.Constraint("Tangent", 15, 1, 12, 2),
    Sketcher.Constraint("Tangent", 16, 1, 17, 2),
    Sketcher.Constraint("Tangent", 17, 1, 18, 2),
    Sketcher.Constraint("Tangent", 18, 1, 19, 2),
    Sketcher.Constraint("Tangent", 19, 1, 16, 2),
    Sketcher.Constraint("Tangent", 20, 1, 21, 2),
    Sketcher.Constraint("Tangent", 21, 1, 22, 2),
    Sketcher.Constraint("Tangent", 22, 1, 23, 2),
    Sketcher.Constraint("Tangent", 23, 1, 20, 2),
    Sketcher.Constraint("Tangent", 24, 1, 25, 2),
    Sketcher.Constraint("Tangent", 25, 1, 26, 2),
    Sketcher.Constraint("Tangent", 26, 1, 27, 2),
    Sketcher.Constraint("Tangent", 27, 1, 24, 2),
    Sketcher.Constraint("Tangent", 28, 1, 29, 2),
    Sketcher.Constraint("Tangent", 29, 1, 30, 2),
    Sketcher.Constraint("Tangent", 30, 1, 31, 2),
    Sketcher.Constraint("Tangent", 31, 1, 28, 2),
    Sketcher.Constraint("Tangent", 32, 1, 33, 2),
    Sketcher.Constraint("Tangent", 33, 1, 34, 2),
    Sketcher.Constraint("Tangent", 34, 1, 35, 2),
    Sketcher.Constraint("Tangent", 35, 1, 32, 2),
    Sketcher.Constraint("Equal", 0, 1),
    Sketcher.Constraint("Equal", 3, 4),
    Sketcher.Constraint("Equal", 4, 5),
    Sketcher.Constraint("Equal", 7, 8),
    Sketcher.Constraint("Equal", 8, 9),
    Sketcher.Constraint("Equal", 11, 12),
    Sketcher.Constraint("Equal", 12, 13),
    Sketcher.Constraint("Equal", 15, 16),
    Sketcher.Constraint("Equal", 16, 17),
    Sketcher.Constraint("Equal", 19, 20),
    Sketcher.Constraint("Equal", 20, 21),
    Sketcher.Constraint("Equal", 23, 24),
    Sketcher.Constraint("Equal", 24, 25),
    Sketcher.Constraint("Equal", 27, 28),
    Sketcher.Constraint("Equal", 28, 29),
    Sketcher.Constraint("Equal", 31, 32),
    Sketcher.Constraint("Equal", 32, 33),
    Sketcher.Constraint("Horizontal", 3, 3, 4, 3),
    Sketcher.Constraint("Horizontal", 7, 3, 8, 3),
    Sketcher.Constraint("Horizontal", 15, 3, 16, 3),
    Sketcher.Constraint("Horizontal", 23, 3, 24, 3),
    Sketcher.Constraint("Horizontal", 27, 3, 28, 3),
    Sketcher.Constraint("Horizontal", 19, 3, 32, 3),
    Sketcher.Constraint("Horizontal", 11, 3, 0, 1),
    Sketcher.Constraint("Horizontal", 0, 1, 2, 1),
    Sketcher.Constraint("Horizontal", 2, 1, 5, 1),
    Sketcher.Constraint("Horizontal", 5, 1, 7, 1),
    Sketcher.Constraint("Horizontal", 7, 1, 8, 1),
    Sketcher.Constraint("Horizontal", 8, 1, 10, 1),
    Sketcher.Constraint("Horizontal", 35, 3, 12, 1),
    Sketcher.Constraint("Horizontal", 12, 1, 14, 1),
    Sketcher.Constraint("Horizontal", 14, 1, 17, 1),
    Sketcher.Constraint("Horizontal", 17, 1, 19, 1),
    Sketcher.Constraint("Horizontal", 31, 3, 21, 1),
    Sketcher.Constraint("Horizontal", 21, 1, 23, 1),
    Sketcher.Constraint("Horizontal", 23, 1, 25, 1),
    Sketcher.Constraint("Horizontal", 25, 1, 27, 1),
    Sketcher.Constraint("Horizontal", 27, 1, 29, 1),
    Sketcher.Constraint("Horizontal", 29, 1, 31, 1),
    Sketcher.Constraint("Horizontal", 19, 1, 32, 1),
    Sketcher.Constraint("Horizontal", 32, 1, 34, 1),
    Sketcher.Constraint("Vertical", 3, 3, 12, 3),
    Sketcher.Constraint("Vertical", 7, 3, 16, 3),
    Sketcher.Constraint("Vertical", 11, 3, 20, 3),
    Sketcher.Constraint("Vertical", 19, 3, 24, 3),
    Sketcher.Constraint("Vertical", 15, 3, 28, 3),
    Sketcher.Constraint("Vertical", 23, 3, 32, 3),
    Sketcher.Constraint("Vertical", 31, 3, 1, 1),
    Sketcher.Constraint("Vertical", 1, 1, 3, 1),
    Sketcher.Constraint("Vertical", 27, 3, 4, 1),
    Sketcher.Constraint("Vertical", 4, 1, 6, 1),
    Sketcher.Constraint("Vertical", 35, 3, 9, 1),
    Sketcher.Constraint("Vertical", 9, 1, 11, 1),
    Sketcher.Constraint("Vertical", 3, 1, 13, 1),
    Sketcher.Constraint("Vertical", 13, 1, 15, 1),
    Sketcher.Constraint("Vertical", 6, 1, 16, 1),
    Sketcher.Constraint("Vertical", 16, 1, 18, 1),
    Sketcher.Constraint("Vertical", 11, 1, 20, 1),
    Sketcher.Constraint("Vertical", 20, 1, 22, 1),
    Sketcher.Constraint("Vertical", 18, 1, 24, 1),
    Sketcher.Constraint("Vertical", 24, 1, 26, 1),
    Sketcher.Constraint("Vertical", 15, 1, 28, 1),
    Sketcher.Constraint("Vertical", 28, 1, 30, 1),
    Sketcher.Constraint("Vertical", 22, 1, 33, 1),
    Sketcher.Constraint("Vertical", 33, 1, 35, 1),
    Sketcher.Constraint("Radius", 0, 5.0),
    Sketcher.Constraint("DistanceX", 0, 3, -1, 1, 25.0),
    Sketcher.Constraint("DistanceY", -1, 1, 0, 3, 55.0),
    Sketcher.Constraint("DistanceX", 4, 3, -1, 1, 40.0),
    Sketcher.Constraint("DistanceX", 8, 3, -1, 1, 55.0),
    Sketcher.Constraint("DistanceY", -1, 1, 12, 3, 40.0),
    Sketcher.Constraint("DistanceY", -1, 1, 20, 3, 25.0),
])
pad5 = body.newObject("PartDesign::Pad", "Pad004")
pad5.Profile = sketch6
pad5.Length = 10
pad5.Reversed = True

doc.recompute()
